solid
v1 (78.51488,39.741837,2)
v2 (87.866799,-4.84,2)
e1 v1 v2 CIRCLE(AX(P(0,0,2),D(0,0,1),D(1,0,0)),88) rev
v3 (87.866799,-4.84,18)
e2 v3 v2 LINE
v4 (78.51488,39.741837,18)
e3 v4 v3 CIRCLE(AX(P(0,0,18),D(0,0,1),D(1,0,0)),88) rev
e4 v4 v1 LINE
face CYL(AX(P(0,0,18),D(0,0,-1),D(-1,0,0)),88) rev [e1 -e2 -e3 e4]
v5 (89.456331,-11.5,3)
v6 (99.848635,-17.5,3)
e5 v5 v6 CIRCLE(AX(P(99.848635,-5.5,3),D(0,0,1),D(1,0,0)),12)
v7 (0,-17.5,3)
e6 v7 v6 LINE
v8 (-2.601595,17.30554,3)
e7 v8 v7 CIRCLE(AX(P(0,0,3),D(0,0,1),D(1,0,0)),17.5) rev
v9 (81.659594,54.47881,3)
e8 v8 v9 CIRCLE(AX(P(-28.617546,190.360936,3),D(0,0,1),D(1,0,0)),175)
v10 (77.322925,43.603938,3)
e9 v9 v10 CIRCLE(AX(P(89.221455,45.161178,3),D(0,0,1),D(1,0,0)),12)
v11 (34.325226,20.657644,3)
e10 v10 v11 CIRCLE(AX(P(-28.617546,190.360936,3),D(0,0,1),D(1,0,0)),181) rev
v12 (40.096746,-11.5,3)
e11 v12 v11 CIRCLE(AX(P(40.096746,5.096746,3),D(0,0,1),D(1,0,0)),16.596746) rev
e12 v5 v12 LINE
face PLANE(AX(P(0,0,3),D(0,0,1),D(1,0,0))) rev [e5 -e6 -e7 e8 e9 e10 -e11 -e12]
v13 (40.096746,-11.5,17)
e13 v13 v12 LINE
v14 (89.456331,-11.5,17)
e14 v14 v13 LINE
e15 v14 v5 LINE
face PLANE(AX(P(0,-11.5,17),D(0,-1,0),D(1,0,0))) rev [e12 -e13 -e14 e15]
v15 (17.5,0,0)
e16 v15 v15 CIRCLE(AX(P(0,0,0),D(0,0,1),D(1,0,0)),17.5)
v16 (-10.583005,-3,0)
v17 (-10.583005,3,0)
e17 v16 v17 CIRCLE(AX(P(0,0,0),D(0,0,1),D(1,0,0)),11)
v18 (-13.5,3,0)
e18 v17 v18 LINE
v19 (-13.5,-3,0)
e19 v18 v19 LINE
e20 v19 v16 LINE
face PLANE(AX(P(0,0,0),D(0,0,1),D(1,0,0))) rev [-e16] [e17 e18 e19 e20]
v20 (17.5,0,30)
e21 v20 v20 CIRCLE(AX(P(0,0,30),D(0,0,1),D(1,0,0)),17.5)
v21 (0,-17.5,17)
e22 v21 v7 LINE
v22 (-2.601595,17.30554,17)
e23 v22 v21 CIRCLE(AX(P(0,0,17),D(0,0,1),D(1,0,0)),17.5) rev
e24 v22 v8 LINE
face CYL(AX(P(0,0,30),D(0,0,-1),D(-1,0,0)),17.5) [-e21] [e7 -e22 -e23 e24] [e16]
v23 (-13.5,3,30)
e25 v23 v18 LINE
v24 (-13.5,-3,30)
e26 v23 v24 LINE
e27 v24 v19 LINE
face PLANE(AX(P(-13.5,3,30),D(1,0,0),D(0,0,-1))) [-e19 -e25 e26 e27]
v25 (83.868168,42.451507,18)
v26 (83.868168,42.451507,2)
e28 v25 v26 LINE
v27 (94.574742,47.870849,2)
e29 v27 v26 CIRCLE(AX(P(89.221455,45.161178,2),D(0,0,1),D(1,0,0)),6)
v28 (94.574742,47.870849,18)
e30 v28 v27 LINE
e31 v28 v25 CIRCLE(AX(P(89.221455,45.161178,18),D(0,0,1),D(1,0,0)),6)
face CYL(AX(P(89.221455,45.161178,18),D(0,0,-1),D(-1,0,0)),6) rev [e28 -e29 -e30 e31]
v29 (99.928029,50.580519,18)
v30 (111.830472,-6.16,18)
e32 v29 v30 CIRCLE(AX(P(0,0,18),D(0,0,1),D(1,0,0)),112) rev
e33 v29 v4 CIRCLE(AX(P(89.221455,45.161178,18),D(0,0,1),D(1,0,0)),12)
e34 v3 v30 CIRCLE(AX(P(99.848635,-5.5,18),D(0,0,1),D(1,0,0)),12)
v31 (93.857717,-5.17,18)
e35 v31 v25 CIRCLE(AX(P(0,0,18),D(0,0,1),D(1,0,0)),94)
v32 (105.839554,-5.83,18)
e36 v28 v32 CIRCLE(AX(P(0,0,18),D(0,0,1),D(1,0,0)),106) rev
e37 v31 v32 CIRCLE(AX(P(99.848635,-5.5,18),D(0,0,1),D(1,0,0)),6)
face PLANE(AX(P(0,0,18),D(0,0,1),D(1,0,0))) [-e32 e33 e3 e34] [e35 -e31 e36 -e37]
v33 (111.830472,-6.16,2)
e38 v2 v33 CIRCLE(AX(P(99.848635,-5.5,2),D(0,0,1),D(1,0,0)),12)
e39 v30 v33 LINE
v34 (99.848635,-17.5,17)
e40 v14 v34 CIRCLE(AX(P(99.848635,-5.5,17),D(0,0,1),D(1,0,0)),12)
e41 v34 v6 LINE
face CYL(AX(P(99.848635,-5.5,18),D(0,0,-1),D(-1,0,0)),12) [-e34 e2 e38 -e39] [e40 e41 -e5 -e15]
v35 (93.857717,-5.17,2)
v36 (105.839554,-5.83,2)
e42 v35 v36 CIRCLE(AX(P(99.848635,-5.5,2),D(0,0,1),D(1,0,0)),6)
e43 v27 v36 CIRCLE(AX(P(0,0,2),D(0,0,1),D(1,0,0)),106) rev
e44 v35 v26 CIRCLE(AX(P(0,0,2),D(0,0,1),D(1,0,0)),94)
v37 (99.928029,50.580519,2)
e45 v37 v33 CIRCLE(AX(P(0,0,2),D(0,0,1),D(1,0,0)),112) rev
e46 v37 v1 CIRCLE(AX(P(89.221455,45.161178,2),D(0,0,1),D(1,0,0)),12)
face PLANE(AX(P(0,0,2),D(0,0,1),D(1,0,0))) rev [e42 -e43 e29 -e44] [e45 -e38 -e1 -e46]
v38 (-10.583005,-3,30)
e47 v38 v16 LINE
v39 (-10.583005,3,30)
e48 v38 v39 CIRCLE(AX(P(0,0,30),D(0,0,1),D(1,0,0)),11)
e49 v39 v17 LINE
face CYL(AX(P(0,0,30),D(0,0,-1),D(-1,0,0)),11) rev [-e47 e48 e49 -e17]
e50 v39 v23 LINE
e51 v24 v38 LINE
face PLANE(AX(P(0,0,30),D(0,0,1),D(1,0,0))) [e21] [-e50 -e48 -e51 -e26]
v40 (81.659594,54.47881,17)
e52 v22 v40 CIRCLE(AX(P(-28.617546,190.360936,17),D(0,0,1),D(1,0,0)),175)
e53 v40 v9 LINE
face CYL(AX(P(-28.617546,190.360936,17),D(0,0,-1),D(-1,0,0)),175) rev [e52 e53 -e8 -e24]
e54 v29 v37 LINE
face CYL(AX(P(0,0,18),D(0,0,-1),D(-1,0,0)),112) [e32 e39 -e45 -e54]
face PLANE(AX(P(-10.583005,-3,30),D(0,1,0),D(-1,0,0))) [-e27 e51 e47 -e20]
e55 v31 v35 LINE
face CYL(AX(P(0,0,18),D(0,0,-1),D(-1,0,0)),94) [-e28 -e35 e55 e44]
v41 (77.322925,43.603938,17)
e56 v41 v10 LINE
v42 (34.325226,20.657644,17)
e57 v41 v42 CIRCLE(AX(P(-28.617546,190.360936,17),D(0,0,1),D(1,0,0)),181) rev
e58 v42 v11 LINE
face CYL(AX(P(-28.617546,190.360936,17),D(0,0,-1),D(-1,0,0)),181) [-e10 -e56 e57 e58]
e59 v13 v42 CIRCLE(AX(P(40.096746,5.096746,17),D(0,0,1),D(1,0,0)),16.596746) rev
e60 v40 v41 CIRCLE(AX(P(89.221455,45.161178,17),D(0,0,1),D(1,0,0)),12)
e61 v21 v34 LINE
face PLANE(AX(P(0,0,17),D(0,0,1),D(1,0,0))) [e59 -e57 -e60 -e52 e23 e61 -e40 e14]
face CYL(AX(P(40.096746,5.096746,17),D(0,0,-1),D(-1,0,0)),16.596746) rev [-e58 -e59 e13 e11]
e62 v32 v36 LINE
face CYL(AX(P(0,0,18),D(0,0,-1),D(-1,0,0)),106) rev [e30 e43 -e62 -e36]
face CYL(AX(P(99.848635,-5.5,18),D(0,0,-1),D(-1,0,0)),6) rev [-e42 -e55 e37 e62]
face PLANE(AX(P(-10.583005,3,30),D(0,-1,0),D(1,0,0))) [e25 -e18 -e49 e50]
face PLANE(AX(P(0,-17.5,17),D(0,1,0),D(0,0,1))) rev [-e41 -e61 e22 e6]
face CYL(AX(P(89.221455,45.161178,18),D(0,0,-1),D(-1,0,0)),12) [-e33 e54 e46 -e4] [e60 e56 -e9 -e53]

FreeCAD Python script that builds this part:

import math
import FreeCAD as App
import Part
import Sketcher

doc = App.newDocument("Part")
body = doc.addObject("PartDesign::Body", "Body")

sketch1 = body.newObject("Sketcher::SketchObject", "Sketch")
sketch1.AttachmentSupport = (doc.getObject("XY_Plane"), [""])
sketch1.MapMode = "FlatFace"
sketch1.addGeometry([
    Part.Circle(App.Vector(0, 0, 0), App.Vector(0, 0, 1), 17.5),
    Part.LineSegment(App.Vector(-13.5, 3, 0), App.Vector(-10.6, 3, 0)),
    Part.ArcOfCircle(Part.Circle(App.Vector(0, 0, 0), App.Vector(0, 0, 1), 11), math.radians(-164), math.radians(164)),
    Part.LineSegment(App.Vector(-10.6, -3, 0), App.Vector(-13.5, -3, 0)),
    Part.LineSegment(App.Vector(-13.5, -3, 0), App.Vector(-13.5, 3, 0)),
], False)
sketch1.addConstraint([
    Sketcher.Constraint("Coincident", 1, 2, 2, 2),
    Sketcher.Constraint("Coincident", 2, 1, 3, 1),
    Sketcher.Constraint("Coincident", 3, 2, 4, 1),
    Sketcher.Constraint("Coincident", 4, 2, 1, 1),
    Sketcher.Constraint("Horizontal", 1),
    Sketcher.Constraint("Horizontal", 3),
    Sketcher.Constraint("Vertical", 4),
    Sketcher.Constraint("Coincident", 0, 3, -1, 1),
    Sketcher.Constraint("Coincident", 2, 3, -1, 1),
    Sketcher.Constraint("Vertical", 1, 2, 2, 1),
    Sketcher.Constraint("Diameter", 0, 35.0),
    Sketcher.Constraint("Radius", 2, 11.0),
    Sketcher.Constraint("DistanceY", 4, 1, 4, 2, 6.0),
    Sketcher.Constraint("DistanceX", 3, 2, -1, 1, 13.5),
])
pad1 = body.newObject("PartDesign::Pad", "Pad")
pad1.Profile = sketch1
pad1.Length = 30

sketch2 = body.newObject("Sketcher::SketchObject", "Sketch001")
sketch2.AttachmentSupport = (doc.getObject("XY_Plane"), [""])
sketch2.MapMode = "FlatFace"
sketch2.AttachmentOffset = App.Placement(App.Vector(0, 0, 10), App.Rotation())
sketch2.addGeometry([
    Part.ArcOfCircle(Part.Circle(App.Vector(0, 0, 0), App.Vector(0, 0, 1), 18), math.radians(-90), math.radians(99)),
    Part.LineSegment(App.Vector(0, -18, 0), App.Vector(100, -18, 0)),
    Part.ArcOfCircle(Part.Circle(App.Vector(100, -5, 0), App.Vector(0, 0, 1), 12), math.radians(-150), math.radians(-90)),
    Part.LineSegment(App.Vector(89, -12, 0), App.Vector(40, -12, 0)),
    Part.ArcOfCircle(Part.Circle(App.Vector(40, 5, 0), App.Vector(0, 0, 1), 17), math.radians(110), math.radians(270)),
    Part.ArcOfCircle(Part.Circle(App.Vector(-29, 190, 0), App.Vector(0, 0, 1), 181), math.radians(-69.65), math.radians(-54.18)),
    Part.ArcOfCircle(Part.Circle(App.Vector(89, 45, 0), App.Vector(0, 0, 1), 12), math.radians(129), math.radians(187)),
    Part.ArcOfCircle(Part.Circle(App.Vector(-29, 190, 0), App.Vector(0, 0, 1), 175), math.radians(-81), math.radians(-51)),
], False)
sketch2.addConstraint([
    Sketcher.Constraint("Tangent", 0, 1, 1, 1),
    Sketcher.Constraint("Tangent", 1, 2, 2, 2),
    Sketcher.Constraint("Coincident", 2, 1, 3, 1),
    Sketcher.Constraint("Tangent", 3, 2, 4, 2),
    Sketcher.Constraint("Tangent", 4, 1, 5, 1),
    Sketcher.Constraint("Coincident", 5, 2, 6, 2),
    Sketcher.Constraint("Tangent", 6, 1, 7, 2),
    Sketcher.Constraint("Tangent", 7, 1, 0, 2),
    Sketcher.Constraint("Horizontal", 1),
    Sketcher.Constraint("Horizontal", 3),
    Sketcher.Constraint("Coincident", 0, 3, -1, 1),
    Sketcher.Constraint("Coincident", 7, 3, 5, 3),
    Sketcher.Constraint("Equal", 2, 6),
    Sketcher.Constraint("Radius", 2, 12.0),
    Sketcher.Constraint("Radius", 5, 181.0),
    Sketcher.Constraint("Radius", 7, 175.0),
    Sketcher.Constraint("Radius", 0, 17.5),
    Sketcher.Constraint("DistanceY", 1, 2, 2, 1, 6.0),
    Sketcher.Constraint("Radius", 4, 16.596746),
    Sketcher.Constraint("DistanceX", 5, 3, 6, 3, 117.839001),
    Sketcher.Constraint("DistanceX", 1, 1, 1, 2, 99.848635),
    Sketcher.Constraint("DistanceX", 3, 2, 3, 1, 49.359584),
])
pad2 = body.newObject("PartDesign::Pad", "Pad001")
pad2.Profile = sketch2
pad2.Length = 14
pad2.Midplane = True

sketch3 = body.newObject("Sketcher::SketchObject", "Sketch002")
sketch3.AttachmentSupport = (doc.getObject("XY_Plane"), [""])
sketch3.MapMode = "FlatFace"
sketch3.AttachmentOffset = App.Placement(App.Vector(0, 0, 10), App.Rotation())
sketch3.addGeometry([
    Part.ArcOfCircle(Part.Circle(App.Vector(89, 45, 0), App.Vector(0, 0, 1), 12), math.radians(27), math.radians(207)),
    Part.ArcOfCircle(Part.Circle(App.Vector(0, 0, 0), App.Vector(0, 0, 1), 88), math.radians(-3), math.radians(27)),
    Part.ArcOfCircle(Part.Circle(App.Vector(100, -6, 0), App.Vector(0, 0, 1), 12), math.radians(177), math.radians(357)),
    Part.ArcOfCircle(Part.Circle(App.Vector(0, 0, 0), App.Vector(0, 0, 1), 112), math.radians(-3), math.radians(27)),
    Part.ArcOfCircle(Part.Circle(App.Vector(89, 45, 0), App.Vector(0, 0, 1), 6), math.radians(27), math.radians(207)),
    Part.ArcOfCircle(Part.Circle(App.Vector(0, 0, 0), App.Vector(0, 0, 1), 106), math.radians(-3), math.radians(27)),
    Part.ArcOfCircle(Part.Circle(App.Vector(100, -6, 0), App.Vector(0, 0, 1), 6), math.radians(177), math.radians(357)),
    Part.ArcOfCircle(Part.Circle(App.Vector(0, 0, 0), App.Vector(0, 0, 1), 94), math.radians(-3), math.radians(27)),
], False)
sketch3.addConstraint([
    Sketcher.Constraint("Tangent", 0, 2, 1, 2),
    Sketcher.Constraint("Tangent", 1, 1, 2, 1),
    Sketcher.Constraint("Tangent", 2, 2, 3, 1),
    Sketcher.Constraint("Tangent", 3, 2, 0, 1),
    Sketcher.Constraint("Tangent", 4, 1, 5, 2),
    Sketcher.Constraint("Tangent", 5, 1, 6, 2),
    Sketcher.Constraint("Tangent", 6, 1, 7, 1),
    Sketcher.Constraint("Tangent", 7, 2, 4, 2),
    Sketcher.Constraint("Coincident", 1, 3, -1, 1),
    Sketcher.Constraint("Coincident", 3, 3, -1, 1),
    Sketcher.Constraint("Coincident", 5, 3, -1, 1),
    Sketcher.Constraint("Coincident", 7, 3, -1, 1),
    Sketcher.Constraint("Coincident", 4, 3, 0, 3),
    Sketcher.Constraint("Radius", 0, 12.0),
    Sketcher.Constraint("Radius", 1, 88.0),
    Sketcher.Constraint("Radius", 4, 6.0),
    Sketcher.Constraint("DistanceY", 2, 3, -1, 1, 5.5),
    Sketcher.Constraint("DistanceY", 6, 3, -1, 1, 5.5),
    Sketcher.Constraint("DistanceY", -1, 1, 0, 3, 45.161178),
])
pad3 = body.newObject("PartDesign::Pad", "Pad002")
pad3.Profile = sketch3
pad3.Length = 16
pad3.Midplane = True

doc.recompute()
